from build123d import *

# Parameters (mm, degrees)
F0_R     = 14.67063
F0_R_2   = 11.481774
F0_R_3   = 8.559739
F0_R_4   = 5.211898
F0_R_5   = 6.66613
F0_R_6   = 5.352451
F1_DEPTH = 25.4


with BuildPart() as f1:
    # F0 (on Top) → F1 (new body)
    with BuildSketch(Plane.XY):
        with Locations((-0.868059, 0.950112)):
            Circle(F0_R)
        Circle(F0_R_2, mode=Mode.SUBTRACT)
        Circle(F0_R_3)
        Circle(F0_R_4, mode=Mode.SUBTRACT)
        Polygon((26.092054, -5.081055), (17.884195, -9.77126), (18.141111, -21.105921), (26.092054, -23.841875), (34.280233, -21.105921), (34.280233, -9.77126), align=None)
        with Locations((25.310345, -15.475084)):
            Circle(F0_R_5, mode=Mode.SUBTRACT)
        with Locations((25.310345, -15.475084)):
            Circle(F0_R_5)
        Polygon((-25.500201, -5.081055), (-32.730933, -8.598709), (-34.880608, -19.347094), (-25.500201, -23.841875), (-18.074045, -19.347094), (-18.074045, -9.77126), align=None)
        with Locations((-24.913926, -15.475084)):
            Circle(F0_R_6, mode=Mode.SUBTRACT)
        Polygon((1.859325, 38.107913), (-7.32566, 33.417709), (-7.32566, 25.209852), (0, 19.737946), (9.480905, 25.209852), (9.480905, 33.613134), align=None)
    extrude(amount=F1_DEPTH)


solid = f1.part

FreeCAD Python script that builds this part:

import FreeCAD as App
import Part
import Sketcher
from FreeCAD import Vector
Q = App.Units.Quantity


def add_polygon(sketch, points):
    """Adds a closed chain of lines whose ends are joined by coincident constraints."""
    first, n = sketch.GeometryCount, len(points)
    for a, b in zip(points, points[1:] + points[:1]):
        sketch.addGeometry(Part.LineSegment(App.Vector(*a, 0), App.Vector(*b, 0)), False)
    for i in range(n):
        sketch.addConstraint(Sketcher.Constraint("Coincident", first + i, 2, first + (i + 1) % n, 1))

doc = App.newDocument("Part")
body = doc.addObject("PartDesign::Body", "Body")
body.AllowCompound = True

sketch1 = body.newObject("Sketcher::SketchObject", "Sketch")
sketch1.AttachmentSupport = (doc.getObject("XY_Plane"), [""])
sketch1.MapMode = "FlatFace"
sketch1.addGeometry(Part.Circle(Vector(-0.868059, 0.950112, 0), Vector(0, 0, 1), 14.67063), False)
sketch1.addGeometry(Part.Circle(Vector(0, 0, 0), Vector(0, 0, 1), 11.481774), False)
sketch1.addGeometry(Part.Circle(Vector(0, 0, 0), Vector(0, 0, 1), 8.559739), False)
sketch1.addGeometry(Part.Circle(Vector(0, 0, 0), Vector(0, 0, 1), 5.211898), False)
add_polygon(sketch1, [(26.092054, -5.081055), (17.884195, -9.77126), (18.141111, -21.105921), (26.092054, -23.841875), (34.280233, -21.105921), (34.280233, -9.77126)])
add_polygon(sketch1, [(-25.500201, -5.081055), (-32.730933, -8.598709), (-34.880608, -19.347094), (-25.500201, -23.841875), (-18.074045, -19.347094), (-18.074045, -9.77126)])
sketch1.addGeometry(Part.Circle(Vector(-24.913926, -15.475084, 0), Vector(0, 0, 1), 5.352451), False)
add_polygon(sketch1, [(1.859325, 38.107913), (-7.32566, 33.417709), (-7.32566, 25.209852), (0, 19.737946), (9.480905, 25.209852), (9.480905, 33.613134)])
sketch1.addConstraint(Sketcher.Constraint("Vertical", 8))
sketch1.addConstraint(Sketcher.Constraint("Vertical", 14))
sketch1.addConstraint(Sketcher.Constraint("Vertical", 18))
sketch1.addConstraint(Sketcher.Constraint("Vertical", 21))
sketch1.addConstraint(Sketcher.Constraint("Coincident", 1, 3, -1, 1))
sketch1.addConstraint(Sketcher.Constraint("Coincident", 2, 3, -1, 1))
sketch1.addConstraint(Sketcher.Constraint("Coincident", 3, 3, -1, 1))
sketch1.addConstraint(Sketcher.Constraint("PointOnObject", 19, 2, -2))
sketch1.addConstraint(Sketcher.Constraint("Horizontal", 5, 2, 7, 2))
sketch1.addConstraint(Sketcher.Constraint("Horizontal", 4, 2, 8, 2))
sketch1.addConstraint(Sketcher.Constraint("Horizontal", 6, 2, 12, 2))
sketch1.addConstraint(Sketcher.Constraint("Horizontal", 11, 2, 13, 2))
sketch1.addConstraint(Sketcher.Constraint("Horizontal", 8, 2, 14, 2))
sketch1.addConstraint(Sketcher.Constraint("Horizontal", 9, 2, 15, 2))
sketch1.addConstraint(Sketcher.Constraint("Horizontal", 18, 2, 20, 2))
sketch1.addConstraint(Sketcher.Constraint("Vertical", 6, 2, 9, 2))
sketch1.addConstraint(Sketcher.Constraint("Vertical", 12, 2, 15, 2))
sketch1.addConstraint(Sketcher.Constraint("Diameter", 0, 29.34126))
sketch1.addConstraint(Sketcher.Constraint("Diameter", 2, 17.119478))
sketch1.addConstraint(Sketcher.Constraint("Diameter", 1, 22.963548))
sketch1.addConstraint(Sketcher.Constraint("Diameter", 3, 10.423796))
sketch1.addConstraint(Sketcher.Constraint("Diameter", 16, 10.704902))
sketch1.addConstraint(Sketcher.Constraint("DistanceY", 8, 1, 8, 2, 11.334661))
sketch1.addConstraint(Sketcher.Constraint("DistanceX", 12, 2, -1, 1, 25.500201))
sketch1.addConstraint(Sketcher.Constraint("DistanceX", 17, 2, 0, 3, 6.457601))
sketch1.addConstraint(Sketcher.Constraint("Distance", 4, 9.453411))
sketch1.addConstraint(Sketcher.Constraint("Distance", 9, 9.436329))
sketch1.addConstraint(Sketcher.Constraint("Distance", 10, 8.040981))
sketch1.addConstraint(Sketcher.Constraint("Distance", 15, 8.783269))
sketch1.addConstraint(Sketcher.Constraint("Distance", 19, 9.143689))
sketch1.addConstraint(Sketcher.Constraint("Distance", 22, 8.84825))
sketch1.addConstraint(Sketcher.Constraint("DistanceY", 14, 1, 14, 2, 9.575834))
sketch1.addConstraint(Sketcher.Constraint("DistanceY", 18, 2, 18, 1, 8.207857))
sketch1.addConstraint(Sketcher.Constraint("DistanceY", 21, 1, 21, 2, 8.403282))
sketch1.addConstraint(Sketcher.Constraint("DistanceX", 0, 3, -1, 1, 0.868059))
sketch1.addConstraint(Sketcher.Constraint("DistanceY", -1, 1, 0, 3, 0.950112))
sketch1.addConstraint(Sketcher.Constraint("DistanceY", 4, 2, -1, 1, 9.77126))
sketch1.addConstraint(Sketcher.Constraint("DistanceX", -1, 1, 5, 2, 18.141111))
sketch1.addConstraint(Sketcher.Constraint("DistanceY", 10, 2, -1, 1, 8.598709))
sketch1.addConstraint(Sketcher.Constraint("DistanceX", 11, 2, -1, 1, 34.880608))
sketch1.addConstraint(Sketcher.Constraint("DistanceY", -1, 1, 17, 2, 33.417709))
sketch1.addConstraint(Sketcher.Constraint("DistanceX", 16, 3, 4, 2, 42.798121))
sketch1.addConstraint(Sketcher.Constraint("DistanceX", 4, 2, 6, 2, 8.207859))
sketch1.addConstraint(Sketcher.Constraint("DistanceY", 6, 2, 9, 2, 18.76082))
sketch1.addConstraint(Sketcher.Constraint("DistanceY", 11, 2, 16, 3, 3.87201))
sketch1.addConstraint(Sketcher.Constraint("DistanceX", 16, 3, 13, 2, 6.839881))
sketch1.addConstraint(Sketcher.Constraint("DistanceX", 22, 2, 21, 2, 7.62158))
sketch1.addConstraint(Sketcher.Constraint("Distance", 17, 10.313194))
pad1 = body.newObject("PartDesign::Pad", "Pad")
pad1.Profile = sketch1
pad1.Length = Q("1 in")

doc.recompute()
